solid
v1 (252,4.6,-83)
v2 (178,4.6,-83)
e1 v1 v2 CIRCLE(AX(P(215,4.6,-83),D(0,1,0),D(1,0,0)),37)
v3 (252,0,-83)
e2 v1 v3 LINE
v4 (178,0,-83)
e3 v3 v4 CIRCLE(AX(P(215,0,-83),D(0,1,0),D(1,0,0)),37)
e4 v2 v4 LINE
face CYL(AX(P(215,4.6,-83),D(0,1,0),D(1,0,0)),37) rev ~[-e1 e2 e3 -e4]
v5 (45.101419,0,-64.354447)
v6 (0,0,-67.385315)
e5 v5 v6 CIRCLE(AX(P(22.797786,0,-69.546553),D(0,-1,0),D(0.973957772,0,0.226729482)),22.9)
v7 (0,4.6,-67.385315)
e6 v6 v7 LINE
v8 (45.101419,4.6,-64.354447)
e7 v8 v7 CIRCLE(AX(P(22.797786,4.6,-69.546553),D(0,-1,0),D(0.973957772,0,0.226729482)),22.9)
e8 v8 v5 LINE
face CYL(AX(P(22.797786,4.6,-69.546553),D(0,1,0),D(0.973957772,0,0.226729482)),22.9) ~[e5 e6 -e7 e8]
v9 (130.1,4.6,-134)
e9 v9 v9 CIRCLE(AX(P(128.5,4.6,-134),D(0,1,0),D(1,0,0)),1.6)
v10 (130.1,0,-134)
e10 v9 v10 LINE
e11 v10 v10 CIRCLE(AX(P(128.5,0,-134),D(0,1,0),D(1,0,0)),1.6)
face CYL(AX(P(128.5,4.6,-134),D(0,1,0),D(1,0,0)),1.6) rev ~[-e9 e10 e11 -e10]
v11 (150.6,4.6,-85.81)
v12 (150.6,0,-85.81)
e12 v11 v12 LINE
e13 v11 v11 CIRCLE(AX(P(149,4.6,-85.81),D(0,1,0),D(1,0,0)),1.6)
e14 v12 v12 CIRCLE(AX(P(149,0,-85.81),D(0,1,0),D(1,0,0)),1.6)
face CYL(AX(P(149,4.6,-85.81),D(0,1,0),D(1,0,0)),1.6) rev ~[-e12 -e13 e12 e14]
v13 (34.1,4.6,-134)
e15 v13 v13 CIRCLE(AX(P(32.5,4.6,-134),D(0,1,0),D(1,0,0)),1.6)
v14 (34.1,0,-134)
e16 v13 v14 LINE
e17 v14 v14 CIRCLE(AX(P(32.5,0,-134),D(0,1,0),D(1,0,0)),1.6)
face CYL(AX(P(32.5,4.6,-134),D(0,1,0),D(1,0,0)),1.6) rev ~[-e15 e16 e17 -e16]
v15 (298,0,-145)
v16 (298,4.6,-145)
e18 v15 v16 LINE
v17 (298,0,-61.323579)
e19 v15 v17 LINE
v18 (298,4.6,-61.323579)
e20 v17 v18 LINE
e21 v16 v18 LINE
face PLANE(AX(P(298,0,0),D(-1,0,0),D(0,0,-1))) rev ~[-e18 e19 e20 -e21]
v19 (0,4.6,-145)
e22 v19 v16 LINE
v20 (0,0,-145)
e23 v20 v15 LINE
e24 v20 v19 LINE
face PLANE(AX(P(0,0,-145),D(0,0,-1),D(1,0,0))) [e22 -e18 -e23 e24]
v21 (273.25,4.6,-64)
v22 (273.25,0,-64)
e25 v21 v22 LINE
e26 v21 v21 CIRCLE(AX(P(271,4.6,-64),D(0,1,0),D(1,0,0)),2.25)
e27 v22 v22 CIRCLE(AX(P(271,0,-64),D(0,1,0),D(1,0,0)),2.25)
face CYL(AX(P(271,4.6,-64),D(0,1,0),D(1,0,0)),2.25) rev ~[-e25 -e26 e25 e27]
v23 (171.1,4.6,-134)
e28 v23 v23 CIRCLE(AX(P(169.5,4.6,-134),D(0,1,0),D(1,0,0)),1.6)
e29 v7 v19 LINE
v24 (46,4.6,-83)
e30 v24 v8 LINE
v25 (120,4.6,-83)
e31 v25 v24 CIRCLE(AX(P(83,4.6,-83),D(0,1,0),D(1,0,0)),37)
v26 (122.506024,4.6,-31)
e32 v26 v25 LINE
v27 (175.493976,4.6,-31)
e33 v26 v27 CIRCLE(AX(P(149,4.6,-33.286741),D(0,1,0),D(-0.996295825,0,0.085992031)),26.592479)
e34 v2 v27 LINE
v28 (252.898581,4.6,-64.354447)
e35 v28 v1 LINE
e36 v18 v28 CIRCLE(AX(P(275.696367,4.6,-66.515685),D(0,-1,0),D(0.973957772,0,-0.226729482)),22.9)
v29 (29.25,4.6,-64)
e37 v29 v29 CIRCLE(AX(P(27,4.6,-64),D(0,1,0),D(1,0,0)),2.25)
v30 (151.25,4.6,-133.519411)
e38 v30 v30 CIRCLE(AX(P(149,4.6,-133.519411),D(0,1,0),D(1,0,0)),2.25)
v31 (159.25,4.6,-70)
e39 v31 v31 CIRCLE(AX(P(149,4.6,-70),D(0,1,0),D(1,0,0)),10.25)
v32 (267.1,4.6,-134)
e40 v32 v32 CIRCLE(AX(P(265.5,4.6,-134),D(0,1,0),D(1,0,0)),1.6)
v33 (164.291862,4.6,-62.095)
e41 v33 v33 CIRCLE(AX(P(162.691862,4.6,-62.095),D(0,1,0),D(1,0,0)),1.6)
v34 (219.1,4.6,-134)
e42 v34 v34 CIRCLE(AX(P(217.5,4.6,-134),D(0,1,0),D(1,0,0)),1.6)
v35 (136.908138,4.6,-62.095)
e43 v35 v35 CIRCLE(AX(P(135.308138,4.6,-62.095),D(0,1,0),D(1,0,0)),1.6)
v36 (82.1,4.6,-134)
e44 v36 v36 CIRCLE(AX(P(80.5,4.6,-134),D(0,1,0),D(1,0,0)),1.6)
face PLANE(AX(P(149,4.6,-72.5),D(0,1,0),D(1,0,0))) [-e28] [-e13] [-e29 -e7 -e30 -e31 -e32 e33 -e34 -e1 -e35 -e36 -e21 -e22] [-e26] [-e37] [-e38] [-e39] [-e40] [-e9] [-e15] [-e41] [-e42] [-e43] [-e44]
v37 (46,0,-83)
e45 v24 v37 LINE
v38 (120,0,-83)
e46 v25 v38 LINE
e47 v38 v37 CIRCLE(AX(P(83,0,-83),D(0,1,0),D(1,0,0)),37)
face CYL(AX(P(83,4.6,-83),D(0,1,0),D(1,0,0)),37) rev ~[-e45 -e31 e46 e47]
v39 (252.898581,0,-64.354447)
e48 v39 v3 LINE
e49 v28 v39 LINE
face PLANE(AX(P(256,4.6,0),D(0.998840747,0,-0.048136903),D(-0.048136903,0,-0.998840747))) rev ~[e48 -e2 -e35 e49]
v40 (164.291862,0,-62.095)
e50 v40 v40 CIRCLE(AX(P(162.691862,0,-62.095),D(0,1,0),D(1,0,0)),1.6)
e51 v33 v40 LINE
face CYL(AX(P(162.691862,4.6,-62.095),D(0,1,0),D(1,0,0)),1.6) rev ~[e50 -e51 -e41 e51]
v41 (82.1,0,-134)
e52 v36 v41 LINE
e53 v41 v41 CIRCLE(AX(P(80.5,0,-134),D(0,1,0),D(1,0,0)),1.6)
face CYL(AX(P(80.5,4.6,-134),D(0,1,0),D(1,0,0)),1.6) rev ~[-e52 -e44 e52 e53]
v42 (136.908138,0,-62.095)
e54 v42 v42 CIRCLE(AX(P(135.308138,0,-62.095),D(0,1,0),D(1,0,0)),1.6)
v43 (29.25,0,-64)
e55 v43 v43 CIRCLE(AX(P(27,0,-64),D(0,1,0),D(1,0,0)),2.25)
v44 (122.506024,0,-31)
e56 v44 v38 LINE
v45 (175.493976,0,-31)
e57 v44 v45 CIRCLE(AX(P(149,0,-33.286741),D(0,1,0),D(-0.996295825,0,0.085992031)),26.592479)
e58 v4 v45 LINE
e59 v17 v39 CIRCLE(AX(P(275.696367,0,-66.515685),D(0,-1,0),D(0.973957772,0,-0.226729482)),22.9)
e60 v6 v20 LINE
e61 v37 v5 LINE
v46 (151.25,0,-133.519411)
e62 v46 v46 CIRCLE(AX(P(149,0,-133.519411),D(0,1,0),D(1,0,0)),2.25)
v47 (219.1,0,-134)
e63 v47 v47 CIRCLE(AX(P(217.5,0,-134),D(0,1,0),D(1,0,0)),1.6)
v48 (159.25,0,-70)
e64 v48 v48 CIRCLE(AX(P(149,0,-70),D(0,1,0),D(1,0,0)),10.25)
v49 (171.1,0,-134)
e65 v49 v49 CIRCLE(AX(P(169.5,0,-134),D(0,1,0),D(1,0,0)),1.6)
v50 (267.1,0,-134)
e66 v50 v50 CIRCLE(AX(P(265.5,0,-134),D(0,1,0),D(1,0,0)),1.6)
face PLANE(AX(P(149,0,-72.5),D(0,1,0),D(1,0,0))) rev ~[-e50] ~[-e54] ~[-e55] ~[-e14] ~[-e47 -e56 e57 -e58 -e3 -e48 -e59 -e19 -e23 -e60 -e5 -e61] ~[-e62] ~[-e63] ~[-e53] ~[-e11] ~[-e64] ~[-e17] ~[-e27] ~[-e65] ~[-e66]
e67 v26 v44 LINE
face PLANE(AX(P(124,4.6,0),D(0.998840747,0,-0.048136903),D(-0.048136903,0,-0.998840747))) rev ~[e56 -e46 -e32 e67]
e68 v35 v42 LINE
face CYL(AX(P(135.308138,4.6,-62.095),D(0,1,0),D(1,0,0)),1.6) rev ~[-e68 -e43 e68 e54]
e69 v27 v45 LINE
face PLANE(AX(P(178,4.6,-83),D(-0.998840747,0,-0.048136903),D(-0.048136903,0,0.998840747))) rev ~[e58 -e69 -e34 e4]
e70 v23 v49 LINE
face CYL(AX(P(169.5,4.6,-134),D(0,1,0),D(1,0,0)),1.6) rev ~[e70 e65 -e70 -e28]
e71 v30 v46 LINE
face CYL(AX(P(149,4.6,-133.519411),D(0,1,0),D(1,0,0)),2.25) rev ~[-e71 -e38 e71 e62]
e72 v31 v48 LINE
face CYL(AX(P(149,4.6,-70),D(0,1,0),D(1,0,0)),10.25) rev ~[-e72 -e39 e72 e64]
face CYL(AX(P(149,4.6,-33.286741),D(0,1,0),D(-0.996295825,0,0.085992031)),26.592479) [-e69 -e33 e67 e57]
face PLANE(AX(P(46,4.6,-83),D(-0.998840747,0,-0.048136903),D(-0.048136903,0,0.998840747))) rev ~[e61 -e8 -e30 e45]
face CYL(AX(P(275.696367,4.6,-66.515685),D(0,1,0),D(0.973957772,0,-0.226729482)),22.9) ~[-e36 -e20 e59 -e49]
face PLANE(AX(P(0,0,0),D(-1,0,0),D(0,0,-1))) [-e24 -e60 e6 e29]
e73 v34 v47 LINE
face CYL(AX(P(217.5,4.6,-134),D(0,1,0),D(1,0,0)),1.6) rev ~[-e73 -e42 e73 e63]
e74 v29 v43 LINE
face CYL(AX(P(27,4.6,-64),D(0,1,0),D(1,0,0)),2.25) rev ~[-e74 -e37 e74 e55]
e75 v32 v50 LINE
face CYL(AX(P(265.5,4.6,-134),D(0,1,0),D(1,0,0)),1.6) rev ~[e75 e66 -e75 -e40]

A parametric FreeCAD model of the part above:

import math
import FreeCAD as App
import Part
import Sketcher
from FreeCAD import Vector
Q = App.Units.Quantity

doc = App.newDocument("Part")
params = doc.addObject("Spreadsheet::Sheet", "Params")
for row, (alias, value) in enumerate([
    ("sketch1_width", "298 mm"),
    ("sketch1_height", "145 mm"),
    ("pad1_length", "4.6 mm"),
    ("sketch2_radius", "37 mm"),
    ("sketch2_width", "82 mm"),
    ("pocket1_length", "46.6 mm"),
    ("sketch3_diameter", "20.5 mm"),
    ("sketch4_diameter", "3.2 mm"),
    ("pocket4_length", "29 mm"),
    ("sketch6_diameter", "4.5 mm"),
    ("pocket5_length", "35 mm"),
    ("sketch7_diameter", "3.2 mm"),
    ("pocket6_length", "4.6 mm"),
    ("pad2_length", "4.6 mm"),
    ("pocket7_length", "4.6 mm"),
    ("sketch10_radius", "22.9 mm"),
    ("pocket8_length", "4.6 mm"),
], start=1):
    params.set(f"A{row}", alias)
    params.set(f"B{row}", "=" + value)
    params.setAlias(f"B{row}", alias)

body = doc.addObject("PartDesign::Body", "Body")

sketch1 = doc.addObject("Sketcher::SketchObject", "Sketch")
body.addObject(sketch1)
sketch1.AttachmentSupport = (doc.XZ_Plane, [""])
sketch1.MapMode = "FlatFace"
sketch1.addGeometry([
    Part.LineSegment(Vector(0, -145, 0), Vector(0, 0, 0)),
    Part.LineSegment(Vector(0, 0, 0), Vector(298, 0, 0)),
    Part.LineSegment(Vector(298, 0, 0), Vector(298, -145, 0)),
    Part.LineSegment(Vector(298, -145, 0), Vector(0, -145, 0)),
], False)
sketch1.addConstraint([
    Sketcher.Constraint("Coincident", 0, 2, 1, 1),
    Sketcher.Constraint("Coincident", 1, 2, 2, 1),
    Sketcher.Constraint("Coincident", 2, 2, 3, 1),
    Sketcher.Constraint("Coincident", 3, 2, 0, 1),
    Sketcher.Constraint("Vertical", 0),
    Sketcher.Constraint("Horizontal", 1),
    Sketcher.Constraint("Vertical", 2),
    Sketcher.Constraint("Horizontal", 3),
    Sketcher.Constraint("Coincident", 0, 2, -1, 1),
    Sketcher.Constraint("DistanceX", 1, 1, 1, 2, Q("298 mm")),
    Sketcher.Constraint("DistanceY", 0, 1, 0, 2, Q("145 mm")),
])
sketch1.setExpression("Constraints[9]", "Params.sketch1_width")
sketch1.setExpression("Constraints[10]", "Params.sketch1_height")
pad1 = doc.addObject("PartDesign::Pad", "Pad")
body.addObject(pad1)
pad1.Profile = sketch1
pad1.setExpression("Length", "Params.pad1_length")
pad1.Reversed = True

sketch2 = doc.addObject("Sketcher::SketchObject", "Sketch001")
body.addObject(sketch2)
sketch2.AttachmentSupport = (doc.XZ_Plane, [""])
sketch2.MapMode = "FlatFace"
sketch2.AttachmentOffset = App.Placement(Vector(0, 0, -4.6), App.Rotation())
sketch2.addGeometry([
    Part.LineSegment(Vector(46, -83, 0), Vector(42, 0, 0)),
    Part.LineSegment(Vector(42, 0, 0), Vector(124, 0, 0)),
    Part.LineSegment(Vector(124, 0, 0), Vector(120, -83, 0)),
    Part.ArcOfCircle(Part.Circle(Vector(83, -83, 0), Vector(0, 0, 1), 37), math.radians(180), math.radians(360)),
    Part.LineSegment(Vector(174, 0, 0), Vector(256, 0, 0)),
    Part.LineSegment(Vector(256, 0, 0), Vector(252, -83, 0)),
    Part.ArcOfCircle(Part.Circle(Vector(215, -83, 0), Vector(0, 0, 1), 37), math.radians(180), math.radians(360)),
    Part.LineSegment(Vector(178, -83, 0), Vector(174, 0, 0)),
], False)
sketch2.addConstraint([
    Sketcher.Constraint("Coincident", 0, 2, 1, 1),
    Sketcher.Constraint("Coincident", 1, 2, 2, 1),
    Sketcher.Constraint("Coincident", 2, 2, 3, 2),
    Sketcher.Constraint("Coincident", 3, 1, 0, 1),
    Sketcher.Constraint("Coincident", 4, 2, 5, 1),
    Sketcher.Constraint("Coincident", 5, 2, 6, 2),
    Sketcher.Constraint("Coincident", 6, 1, 7, 1),
    Sketcher.Constraint("Coincident", 7, 2, 4, 1),
    Sketcher.Constraint("Horizontal", 1),
    Sketcher.Constraint("Horizontal", 4),
    Sketcher.Constraint("Equal", 3, 6),
    Sketcher.Constraint("PointOnObject", 0, 2, -1),
    Sketcher.Constraint("PointOnObject", 4, 2, -1),
    Sketcher.Constraint("Parallel", 2, 5),
    Sketcher.Constraint("Parallel", 0, 7),
    Sketcher.Constraint("Horizontal", 3, 3, 6, 3),
    Sketcher.Constraint("Horizontal", 6, 3, 2, 2),
    Sketcher.Constraint("Horizontal", 2, 2, 3, 1),
    Sketcher.Constraint("Horizontal", 3, 1, 5, 2),
    Sketcher.Constraint("Horizontal", 5, 2, 6, 1),
    Sketcher.Constraint("Equal", 0, 2),
    Sketcher.Constraint("Radius", 3, Q("37 mm")),
    Sketcher.Constraint("DistanceX", 1, 1, 1, 2, Q("82 mm")),
    Sketcher.Constraint("DistanceX", -1, 1, 3, 3, Q("83 mm")),
    Sketcher.Constraint("DistanceY", 3, 3, -1, 1, Q("83 mm")),
    Sketcher.Constraint("DistanceX", -1, 1, 6, 3, Q("215 mm")),
])
sketch2.setExpression("Constraints[21]", "Params.sketch2_radius")
sketch2.setExpression("Constraints[22]", "Params.sketch2_width")
pocket1 = doc.addObject("PartDesign::Pocket", "Pocket")
body.addObject(pocket1)
pocket1.Profile = sketch2
pocket1.setExpression("Length", "Params.pocket1_length")
pocket1.Reversed = True

sketch3 = doc.addObject("Sketcher::SketchObject", "Sketch002")
body.addObject(sketch3)
sketch3.AttachmentSupport = (doc.XZ_Plane, [""])
sketch3.MapMode = "FlatFace"
sketch3.AttachmentOffset = App.Placement(Vector(0, 0, -4.6), App.Rotation())
sketch3.addGeometry(Part.Circle(Vector(149, -70, 0), Vector(0, 0, 1), 10.25), False)
sketch3.addConstraint([
    Sketcher.Constraint("Diameter", 0, Q("20.5 mm")),
    Sketcher.Constraint("DistanceX", -1, 1, 0, 3, Q("149 mm")),
    Sketcher.Constraint("DistanceY", 0, 3, -1, 1, Q("70 mm")),
])
sketch3.setExpression("Constraints[0]", "Params.sketch3_diameter")
pocket2 = doc.addObject("PartDesign::Pocket", "Pocket001")
body.addObject(pocket2)
pocket2.Profile = sketch3
pocket2.Type = "ThroughAll"
pocket2.Reversed = True

sketch4 = doc.addObject("Sketcher::SketchObject", "Sketch003")
body.addObject(sketch4)
sketch4.AttachmentSupport = (doc.XZ_Plane, [""])
sketch4.MapMode = "FlatFace"
sketch4.AttachmentOffset = App.Placement(Vector(0, 0, -4.6), App.Rotation())
sketch4.addGeometry([
    Part.Circle(Vector(32.5, -134, 0), Vector(0, 0, 1), 1.6),
    Part.Circle(Vector(80.5, -134, 0), Vector(0, 0, 1), 1.6),
    Part.Circle(Vector(128.5, -134, 0), Vector(0, 0, 1), 1.6),
    Part.Circle(Vector(217.5, -134, 0), Vector(0, 0, 1), 1.6),
    Part.Circle(Vector(169.5, -134, 0), Vector(0, 0, 1), 1.6),
    Part.Circle(Vector(265.5, -134, 0), Vector(0, 0, 1), 1.6),
], False)
sketch4.addConstraint([
    Sketcher.Constraint("Equal", 0, 1),
    Sketcher.Constraint("Equal", 1, 2),
    Sketcher.Constraint("Equal", 2, 3),
    Sketcher.Constraint("Equal", 3, 4),
    Sketcher.Constraint("Equal", 4, 5),
    Sketcher.Constraint("Horizontal", 0, 3, 1, 3),
    Sketcher.Constraint("Horizontal", 1, 3, 2, 3),
    Sketcher.Constraint("Horizontal", 2, 3, 3, 3),
    Sketcher.Constraint("Horizontal", 3, 3, 4, 3),
    Sketcher.Constraint("Horizontal", 4, 3, 5, 3),
    Sketcher.Constraint("Diameter", 0, Q("3.2 mm")),
    Sketcher.Constraint("DistanceY", 0, 3, -1, 1, Q("134 mm")),
    Sketcher.Constraint("DistanceX", 0, 3, 1, 3, Q("48 mm")),
    Sketcher.Constraint("DistanceX", 1, 3, 2, 3, Q("48 mm")),
    Sketcher.Constraint("DistanceX", 2, 3, 3, 3, Q("89 mm")),
    Sketcher.Constraint("DistanceX", 2, 3, 4, 3, Q("41 mm")),
    Sketcher.Constraint("DistanceX", 3, 3, 5, 3, Q("48 mm")),
    Sketcher.Constraint("DistanceX", -1, 1, 0, 3, Q("32.5 mm")),
])
sketch4.setExpression("Constraints[10]", "Params.sketch4_diameter")
pocket3 = doc.addObject("PartDesign::Pocket", "Pocket002")
body.addObject(pocket3)
pocket3.Profile = sketch4
pocket3.Type = "ThroughAll"
pocket3.Reversed = True

sketch5 = doc.addObject("Sketcher::SketchObject", "Sketch004")
body.addObject(sketch5)
sketch5.AttachmentSupport = (doc.XZ_Plane, [""])
sketch5.MapMode = "FlatFace"
sketch5.AttachmentOffset = App.Placement(Vector(0, 0, -4.6), App.Rotation())
sketch5.addGeometry([
    Part.LineSegment(Vector(123.101132, -18.65152, 0), Vector(120.058616, 9.94207, 0)),
    Part.LineSegment(Vector(120.058616, 9.94207, 0), Vector(178.789757, 9.94207, 0)),
    Part.LineSegment(Vector(178.789757, 9.94207, 0), Vector(174.898868, -18.65152, 0)),
    Part.ArcOfCircle(Part.Circle(Vector(149, -70, 0), Vector(0, 0, 1), 57.510154), math.radians(63.234784), math.radians(116.765216)),
], False)
sketch5.addConstraint([
    Sketcher.Constraint("Coincident", 0, 2, 1, 1),
    Sketcher.Constraint("Coincident", 1, 2, 2, 1),
    Sketcher.Constraint("Coincident", 2, 2, 3, 1),
    Sketcher.Constraint("Coincident", 3, 2, 0, 1),
    Sketcher.Constraint("Horizontal", 1),
    Sketcher.Constraint("Horizontal", 2, 2, 3, 2),
    Sketcher.Constraint("DistanceX", -1, 1, 3, 3, Q("149 mm")),
    Sketcher.Constraint("DistanceY", 3, 3, -1, 1, Q("70 mm")),
    Sketcher.Constraint("Radius", 3, Q("57.510154 mm")),
    Sketcher.Constraint("DistanceX", 1, 1, 1, 2, Q("58.731141 mm")),
    Sketcher.Constraint("DistanceY", -1, 1, 0, 2, Q("9.94207 mm")),
    Sketcher.Constraint("DistanceX", -1, 1, 2, 2, Q("174.898868 mm")),
    Sketcher.Constraint("DistanceX", 2, 2, 1, 2, Q("3.890889 mm")),
])
pocket4 = doc.addObject("PartDesign::Pocket", "Pocket003")
body.addObject(pocket4)
pocket4.Profile = sketch5
pocket4.setExpression("Length", "Params.pocket4_length")
pocket4.Reversed = True

sketch6 = doc.addObject("Sketcher::SketchObject", "Sketch005")
body.addObject(sketch6)
sketch6.AttachmentSupport = (doc.XZ_Plane, [""])
sketch6.MapMode = "FlatFace"
sketch6.AttachmentOffset = App.Placement(Vector(0, 0, -4.6), App.Rotation())
sketch6.addGeometry([
    Part.Circle(Vector(27, -64, 0), Vector(0, 0, 1), 2.25),
    Part.Circle(Vector(271, -64, 0), Vector(0, 0, 1), 2.25),
    Part.Circle(Vector(149, -133.519411, 0), Vector(0, 0, 1), 2.25),
], False)
sketch6.addConstraint([
    Sketcher.Constraint("Equal", 0, 1),
    Sketcher.Constraint("Equal", 1, 2),
    Sketcher.Constraint("Horizontal", 0, 3, 1, 3),
    Sketcher.Constraint("Diameter", 0, Q("4.5 mm")),
    Sketcher.Constraint("DistanceX", -1, 1, 0, 3, Q("27 mm")),
    Sketcher.Constraint("DistanceY", 0, 3, -1, 1, Q("64 mm")),
    Sketcher.Constraint("DistanceX", -1, 1, 1, 3, Q("271 mm")),
    Sketcher.Constraint("DistanceX", -1, 1, 2, 3, Q("149 mm")),
    Sketcher.Constraint("DistanceY", 2, 3, -1, 1, Q("133.519411 mm")),
])
sketch6.setExpression("Constraints[3]", "Params.sketch6_diameter")
pocket5 = doc.addObject("PartDesign::Pocket", "Pocket004")
body.addObject(pocket5)
pocket5.Profile = sketch6
pocket5.setExpression("Length", "Params.pocket5_length")
pocket5.Reversed = True

sketch7 = doc.addObject("Sketcher::SketchObject", "Sketch006")
body.addObject(sketch7)
sketch7.AttachmentSupport = (doc.XZ_Plane, [""])
sketch7.MapMode = "FlatFace"
sketch7.AttachmentOffset = App.Placement(Vector(0, 0, -4.6), App.Rotation())
sketch7.addGeometry([
    Part.Circle(Vector(149, -85.81, 0), Vector(0, 0, 1), 1.6),
    Part.Circle(Vector(135.308138, -62.095, 0), Vector(0, 0, 1), 1.6),
    Part.Circle(Vector(162.691862, -62.095, 0), Vector(0, 0, 1), 1.6),
], False)
sketch7.addConstraint([
    Sketcher.Constraint("Equal", 0, 1),
    Sketcher.Constraint("Equal", 1, 2),
    Sketcher.Constraint("Horizontal", 1, 3, 2, 3),
    Sketcher.Constraint("Diameter", 0, Q("3.2 mm")),
    Sketcher.Constraint("DistanceX", -1, 1, 0, 3, Q("149 mm")),
    Sketcher.Constraint("DistanceY", 0, 3, -1, 1, Q("85.81 mm")),
    Sketcher.Constraint("DistanceY", 1, 3, -1, 1, Q("62.095 mm")),
    Sketcher.Constraint("DistanceX", -1, 1, 1, 3, Q("135.308138 mm")),
    Sketcher.Constraint("DistanceX", -1, 1, 2, 3, Q("162.691862 mm")),
])
sketch7.setExpression("Constraints[3]", "Params.sketch7_diameter")
pocket6 = doc.addObject("PartDesign::Pocket", "Pocket005")
body.addObject(pocket6)
pocket6.Profile = sketch7
pocket6.setExpression("Length", "Params.pocket6_length")
pocket6.Reversed = True

sketch8 = doc.addObject("Sketcher::SketchObject", "Sketch007")
body.addObject(sketch8)
sketch8.AttachmentSupport = (doc.XZ_Plane, [""])
sketch8.MapMode = "FlatFace"
sketch8.AttachmentOffset = App.Placement(Vector(0, 0, -4.6), App.Rotation())
sketch8.addGeometry([
    Part.ArcOfCircle(Part.Circle(Vector(149, -32.538615, 0), Vector(0, 0, 1), 26.538615), math.radians(3.323671), math.radians(176.676329)),
    Part.ArcOfCircle(Part.Circle(Vector(149, -95.79361, 0), Vector(0, 0, 1), 70.001019), math.radians(67.760446), math.radians(112.239554)),
], False)
sketch8.addConstraint([
    Sketcher.Constraint("Coincident", 0, 1, 1, 1),
    Sketcher.Constraint("Coincident", 1, 2, 0, 2),
    Sketcher.Constraint("Horizontal", 0, 1, 1, 2),
    Sketcher.Constraint("DistanceX", -1, 1, 0, 3, Q("149 mm")),
    Sketcher.Constraint("DistanceY", 0, 1, -1, 1, Q("31 mm")),
    Sketcher.Constraint("Radius", 1, Q("70.001019 mm")),
    Sketcher.Constraint("Radius", 0, Q("26.538615 mm")),
    Sketcher.Constraint("DistanceY", 1, 3, -1, 1, Q("95.79361 mm")),
])
pad2 = doc.addObject("PartDesign::Pad", "Pad001")
body.addObject(pad2)
pad2.Profile = sketch8
pad2.setExpression("Length", "Params.pad2_length")

sketch9 = doc.addObject("Sketcher::SketchObject", "Sketch008")
body.addObject(sketch9)
sketch9.AttachmentSupport = (doc.XZ_Plane, [""])
sketch9.MapMode = "FlatFace"
sketch9.AttachmentOffset = App.Placement(Vector(0, 0, -4.6), App.Rotation())
sketch9.addGeometry([
    Part.LineSegment(Vector(178.847567, 7.009778, 0), Vector(175.493976, -31, 0)),
    Part.ArcOfCircle(Part.Circle(Vector(149, -33.286741, 0), Vector(0, 0, 1), 26.592479), math.radians(4.933073), math.radians(175.066927)),
    Part.LineSegment(Vector(122.506024, -31, 0), Vector(115.973211, 7.009778, 0)),
    Part.LineSegment(Vector(115.973211, 7.009778, 0), Vector(178.847567, 7.009778, 0)),
], False)
sketch9.addConstraint([
    Sketcher.Constraint("Coincident", 0, 2, 1, 1),
    Sketcher.Constraint("Coincident", 1, 2, 2, 1),
    Sketcher.Constraint("Coincident", 2, 2, 3, 1),
    Sketcher.Constraint("Coincident", 3, 2, 0, 1),
    Sketcher.Constraint("Horizontal", 3),
    Sketcher.Constraint("Horizontal", 0, 2, 1, 2),
    Sketcher.Constraint("DistanceX", -1, 1, 1, 3, Q("149 mm")),
    Sketcher.Constraint("DistanceY", 0, 2, -1, 1, Q("31 mm")),
    Sketcher.Constraint("Radius", 1, Q("26.592479 mm")),
    Sketcher.Constraint("DistanceX", 3, 1, 3, 2, Q("62.874356 mm")),
    Sketcher.Constraint("DistanceY", 1, 3, -1, 1, Q("33.286741 mm")),
    Sketcher.Constraint("DistanceX", -1, 1, 2, 2, Q("115.973211 mm")),
    Sketcher.Constraint("DistanceY", -1, 1, 2, 2, Q("7.009778 mm")),
])
pocket7 = doc.addObject("PartDesign::Pocket", "Pocket006")
body.addObject(pocket7)
pocket7.Profile = sketch9
pocket7.setExpression("Length", "Params.pocket7_length")
pocket7.Reversed = True

sketch10 = doc.addObject("Sketcher::SketchObject", "Sketch009")
body.addObject(sketch10)
sketch10.AttachmentSupport = (doc.XZ_Plane, [""])
sketch10.MapMode = "FlatFace"
sketch10.AttachmentOffset = App.Placement(Vector(0, 0, -4.6), App.Rotation())
sketch10.addGeometry([
    Part.LineSegment(Vector(0, -71.70779, 0), Vector(-22.158835, 9.528976, 0)),
    Part.LineSegment(Vector(-22.158835, 9.528976, 0), Vector(50.380974, 9.528976, 0)),
    Part.LineSegment(Vector(50.380974, 9.528976, 0), Vector(45.101419, -64.354447, 0)),
    Part.ArcOfCircle(Part.Circle(Vector(22.797786, -69.546553, 0), Vector(0, 0, 1), 22.9), math.radians(13.104599), math.radians(185.415473)),
    Part.LineSegment(Vector(252.898581, -64.354447, 0), Vector(243.707236, 12.373693, 0)),
    Part.LineSegment(Vector(243.707236, 12.373693, 0), Vector(332.150207, 12.373693, 0)),
    Part.LineSegment(Vector(332.150207, 12.373693, 0), Vector(298, -71.70779, 0)),
    Part.ArcOfCircle(Part.Circle(Vector(275.696367, -66.515685, 0), Vector(0, 0, 1), 22.9), math.radians(-13.104599), math.radians(174.584527)),
], False)
sketch10.addConstraint([
    Sketcher.Constraint("Coincident", 0, 2, 1, 1),
    Sketcher.Constraint("Coincident", 1, 2, 2, 1),
    Sketcher.Constraint("Coincident", 2, 2, 3, 1),
    Sketcher.Constraint("Coincident", 3, 2, 0, 1),
    Sketcher.Constraint("Coincident", 4, 2, 5, 1),
    Sketcher.Constraint("Coincident", 5, 2, 6, 1),
    Sketcher.Constraint("Coincident", 6, 2, 7, 1),
    Sketcher.Constraint("Coincident", 7, 2, 4, 1),
    Sketcher.Constraint("Horizontal", 1),
    Sketcher.Constraint("Horizontal", 5),
    Sketcher.Constraint("Equal", 3, 7),
    Sketcher.Constraint("PointOnObject", 3, 2, -2),
    Sketcher.Constraint("Horizontal", 3, 2, 6, 2),
    Sketcher.Constraint("Horizontal", 2, 2, 7, 2),
    Sketcher.Constraint("Radius", 3, Q("22.9 mm")),
    Sketcher.Constraint("DistanceX", -1, 1, 6, 2, Q("298 mm")),
    Sketcher.Constraint("Distance", 4, Q("77.2767 mm")),
    Sketcher.Constraint("DistanceX", 1, 1, 1, 2, Q("72.53981 mm")),
    Sketcher.Constraint("DistanceX", 5, 1, 5, 2, Q("88.442971 mm")),
    Sketcher.Constraint("DistanceX", -1, 1, 2, 2, Q("45.101419 mm")),
    Sketcher.Constraint("DistanceY", 3, 2, -1, 1, Q("71.70779 mm")),
    Sketcher.Constraint("DistanceX", -1, 1, 7, 2, Q("252.898581 mm")),
    Sketcher.Constraint("DistanceY", 3, 3, 7, 3, Q("3.030868 mm")),
    Sketcher.Constraint("DistanceX", 0, 2, 3, 3, Q("44.956622 mm")),
    Sketcher.Constraint("DistanceY", 3, 3, 0, 2, Q("79.075528 mm")),
    Sketcher.Constraint("DistanceX", 4, 2, 7, 3, Q("31.989131 mm")),
])
sketch10.setExpression("Constraints[14]", "Params.sketch10_radius")
pocket8 = doc.addObject("PartDesign::Pocket", "Pocket007")
body.addObject(pocket8)
pocket8.Profile = sketch10
pocket8.setExpression("Length", "Params.pocket8_length")
pocket8.Reversed = True

doc.recompute()
